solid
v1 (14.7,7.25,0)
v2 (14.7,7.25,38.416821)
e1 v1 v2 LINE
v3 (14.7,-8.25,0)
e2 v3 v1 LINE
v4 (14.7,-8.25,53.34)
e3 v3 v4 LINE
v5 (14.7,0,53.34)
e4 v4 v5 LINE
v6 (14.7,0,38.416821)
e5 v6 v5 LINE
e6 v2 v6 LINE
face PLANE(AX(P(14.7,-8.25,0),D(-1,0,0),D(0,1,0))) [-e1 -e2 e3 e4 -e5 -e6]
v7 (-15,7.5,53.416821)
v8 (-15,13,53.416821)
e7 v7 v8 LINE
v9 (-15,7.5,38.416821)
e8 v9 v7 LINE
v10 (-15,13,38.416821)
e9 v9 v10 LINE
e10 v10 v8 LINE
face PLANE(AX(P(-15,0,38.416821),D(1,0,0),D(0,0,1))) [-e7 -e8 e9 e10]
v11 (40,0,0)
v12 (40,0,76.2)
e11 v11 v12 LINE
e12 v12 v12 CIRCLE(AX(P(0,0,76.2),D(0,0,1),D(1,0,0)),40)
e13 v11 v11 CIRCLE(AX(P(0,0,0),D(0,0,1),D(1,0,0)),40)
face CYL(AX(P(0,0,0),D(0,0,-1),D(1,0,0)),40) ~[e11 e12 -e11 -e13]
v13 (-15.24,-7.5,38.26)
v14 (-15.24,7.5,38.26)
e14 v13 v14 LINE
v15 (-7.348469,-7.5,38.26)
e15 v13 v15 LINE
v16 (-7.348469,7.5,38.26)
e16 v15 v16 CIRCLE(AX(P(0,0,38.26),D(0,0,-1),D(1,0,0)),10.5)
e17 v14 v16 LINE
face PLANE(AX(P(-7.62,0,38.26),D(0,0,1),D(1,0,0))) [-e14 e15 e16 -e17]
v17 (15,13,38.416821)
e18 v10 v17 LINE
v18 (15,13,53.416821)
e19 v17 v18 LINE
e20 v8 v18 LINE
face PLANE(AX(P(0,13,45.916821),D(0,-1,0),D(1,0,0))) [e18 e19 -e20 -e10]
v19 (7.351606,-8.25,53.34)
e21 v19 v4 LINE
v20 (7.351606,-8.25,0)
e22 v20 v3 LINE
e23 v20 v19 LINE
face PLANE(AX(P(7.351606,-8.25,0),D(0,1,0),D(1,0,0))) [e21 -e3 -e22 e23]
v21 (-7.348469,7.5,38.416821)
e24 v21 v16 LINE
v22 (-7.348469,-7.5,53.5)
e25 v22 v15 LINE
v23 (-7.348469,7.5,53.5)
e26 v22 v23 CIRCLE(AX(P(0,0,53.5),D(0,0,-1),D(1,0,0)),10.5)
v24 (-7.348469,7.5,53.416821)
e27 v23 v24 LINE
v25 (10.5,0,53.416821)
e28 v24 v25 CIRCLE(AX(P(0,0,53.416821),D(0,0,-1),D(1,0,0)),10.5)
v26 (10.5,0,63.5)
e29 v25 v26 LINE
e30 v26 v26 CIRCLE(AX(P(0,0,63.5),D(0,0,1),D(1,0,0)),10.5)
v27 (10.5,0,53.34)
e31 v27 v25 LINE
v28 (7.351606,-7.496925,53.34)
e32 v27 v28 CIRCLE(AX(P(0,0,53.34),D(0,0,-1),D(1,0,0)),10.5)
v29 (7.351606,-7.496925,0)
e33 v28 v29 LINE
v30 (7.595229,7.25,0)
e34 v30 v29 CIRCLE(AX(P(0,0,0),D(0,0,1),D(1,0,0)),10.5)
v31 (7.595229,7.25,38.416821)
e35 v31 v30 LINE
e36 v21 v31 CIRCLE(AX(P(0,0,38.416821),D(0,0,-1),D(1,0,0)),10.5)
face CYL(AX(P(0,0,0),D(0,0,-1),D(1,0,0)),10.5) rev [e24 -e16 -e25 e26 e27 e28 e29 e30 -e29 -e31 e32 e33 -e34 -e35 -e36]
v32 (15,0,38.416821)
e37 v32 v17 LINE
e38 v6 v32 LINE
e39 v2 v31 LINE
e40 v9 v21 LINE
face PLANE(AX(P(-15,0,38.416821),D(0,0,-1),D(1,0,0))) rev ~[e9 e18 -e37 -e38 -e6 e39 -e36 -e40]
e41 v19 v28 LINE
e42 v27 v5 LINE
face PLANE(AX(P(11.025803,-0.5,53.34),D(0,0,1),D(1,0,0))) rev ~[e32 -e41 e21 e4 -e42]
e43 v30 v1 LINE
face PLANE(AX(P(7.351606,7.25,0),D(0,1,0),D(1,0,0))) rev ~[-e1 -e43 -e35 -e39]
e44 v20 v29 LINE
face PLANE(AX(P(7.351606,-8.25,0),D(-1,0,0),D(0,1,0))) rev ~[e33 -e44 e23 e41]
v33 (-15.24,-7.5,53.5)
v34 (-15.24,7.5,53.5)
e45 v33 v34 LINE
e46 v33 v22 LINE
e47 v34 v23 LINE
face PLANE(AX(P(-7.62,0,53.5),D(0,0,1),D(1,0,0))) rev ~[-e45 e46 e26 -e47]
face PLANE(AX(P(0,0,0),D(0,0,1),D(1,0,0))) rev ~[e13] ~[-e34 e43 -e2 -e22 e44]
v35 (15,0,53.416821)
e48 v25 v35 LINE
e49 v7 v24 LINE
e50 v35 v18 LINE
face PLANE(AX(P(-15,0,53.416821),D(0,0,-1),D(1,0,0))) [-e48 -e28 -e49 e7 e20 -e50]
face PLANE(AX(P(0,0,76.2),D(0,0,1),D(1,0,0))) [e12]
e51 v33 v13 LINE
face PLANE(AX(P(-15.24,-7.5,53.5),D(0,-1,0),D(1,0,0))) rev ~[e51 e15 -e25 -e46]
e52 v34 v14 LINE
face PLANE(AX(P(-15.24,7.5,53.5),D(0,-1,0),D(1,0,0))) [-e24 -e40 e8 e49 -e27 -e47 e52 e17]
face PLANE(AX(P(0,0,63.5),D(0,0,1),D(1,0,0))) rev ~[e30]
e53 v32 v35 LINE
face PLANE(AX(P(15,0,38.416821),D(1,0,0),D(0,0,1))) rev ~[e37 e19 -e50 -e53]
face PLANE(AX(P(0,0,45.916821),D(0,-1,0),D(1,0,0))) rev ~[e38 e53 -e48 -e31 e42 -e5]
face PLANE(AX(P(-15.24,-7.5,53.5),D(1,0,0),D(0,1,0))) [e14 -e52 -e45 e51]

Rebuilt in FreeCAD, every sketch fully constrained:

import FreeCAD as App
import Part
import Sketcher
Q = App.Units.Quantity


def add_polygon(sketch, points):
    """Adds a closed chain of lines whose ends are joined by coincident constraints."""
    first, n = sketch.GeometryCount, len(points)
    for a, b in zip(points, points[1:] + points[:1]):
        sketch.addGeometry(Part.LineSegment(App.Vector(*a, 0), App.Vector(*b, 0)), False)
    for i in range(n):
        sketch.addConstraint(Sketcher.Constraint("Coincident", first + i, 2, first + (i + 1) % n, 1))

doc = App.newDocument("Part")
body = doc.addObject("PartDesign::Body", "Body")

# Sketch on XY plane
sketch1 = body.newObject("Sketcher::SketchObject", "Sketch")
sketch1.AttachmentSupport = (doc.getObject("XY_Plane"), [""])
sketch1.MapMode = "FlatFace"
sketch1.addGeometry(Part.Circle(App.Vector(0, 0, 0), App.Vector(0, 0, 1), 40), False)
sketch1.addConstraint([
    Sketcher.Constraint("Coincident", 0, 3, -1, 1),
    Sketcher.Constraint("Diameter", 0, Q("80 mm")),
])
pad1 = body.newObject("PartDesign::Pad", "Pad")
pad1.Profile = sketch1
pad1.Length = 76.2

# Sketch on XY plane
sketch2 = body.newObject("Sketcher::SketchObject", "Sketch001")
sketch2.AttachmentSupport = (doc.getObject("XY_Plane"), [""])
sketch2.MapMode = "FlatFace"
sketch2.addGeometry(Part.Circle(App.Vector(0, 0, 0), App.Vector(0, 0, 1), 10), False)
sketch2.addConstraint([
    Sketcher.Constraint("Coincident", 0, 3, -1, 1),
    Sketcher.Constraint("Diameter", 0, Q("21 mm")),
])
pocket1 = body.newObject("PartDesign::Pocket", "Pocket")
pocket1.Profile = sketch2
pocket1.Length = 63.5
pocket1.Reversed = True

# Sketch on XY plane
sketch3 = body.newObject("Sketcher::SketchObject", "Sketch002")
sketch3.AttachmentSupport = (doc.getObject("XY_Plane"), [""])
sketch3.MapMode = "FlatFace"
add_polygon(sketch3, [(7, 7), (7, -8), (15, -8), (15, 7)])  # lines 0-3
sketch3.addConstraint([
    Sketcher.Constraint("Vertical", 0),
    Sketcher.Constraint("Horizontal", 1),
    Sketcher.Constraint("Vertical", 2),
    Sketcher.Constraint("Horizontal", 3),
    Sketcher.Constraint("DistanceY", 0, 2, 0, 1, Q("15.5 mm")),
    Sketcher.Constraint("DistanceX", -1, 1, 1, 2, Q("14.7 mm")),
    Sketcher.Constraint("DistanceY", 0, 2, -1, 1, Q("8.25 mm")),
    Sketcher.Constraint("DistanceX", 1, 1, 1, 2, Q("7.348393 mm")),
])
pocket2 = body.newObject("PartDesign::Pocket", "Pocket001")
pocket2.Profile = sketch3
pocket2.Length = 53.34
pocket2.Reversed = True

# Sketch on XY plane
sketch4 = body.newObject("Sketcher::SketchObject", "Sketch003")
sketch4.AttachmentSupport = (doc.getObject("XY_Plane"), [""])
sketch4.MapMode = "FlatFace"
sketch4.AttachmentOffset = App.Placement(App.Vector(0, 0, 53.5), App.Rotation())
add_polygon(sketch4, [(-15, 8), (-15, -8), (0, -8), (0, 8)])  # lines 0-3
sketch4.addConstraint([
    Sketcher.Constraint("Vertical", 0),
    Sketcher.Constraint("Horizontal", 1),
    Sketcher.Constraint("Vertical", 2),
    Sketcher.Constraint("Horizontal", 3),
    Sketcher.Constraint("Symmetric", 1, 2, 2, 2, -1, 1),
    Sketcher.Constraint("DistanceY", 0, 2, 0, 1, Q("15 mm")),
    Sketcher.Constraint("DistanceX", 1, 1, 1, 2, Q("15.24 mm")),
])
pocket3 = body.newObject("PartDesign::Pocket", "Pocket002")
pocket3.Profile = sketch4
pocket3.Length = 15.24

# Sketch on XZ plane
sketch5 = body.newObject("Sketcher::SketchObject", "Sketch004")
sketch5.AttachmentSupport = (doc.getObject("XZ_Plane"), [""])
sketch5.MapMode = "FlatFace"
add_polygon(sketch5, [(-15, 53), (-15, 38), (15, 38), (15, 53)])  # lines 0-3
sketch5.addConstraint([
    Sketcher.Constraint("Vertical", 0),
    Sketcher.Constraint("Horizontal", 1),
    Sketcher.Constraint("Vertical", 2),
    Sketcher.Constraint("Horizontal", 3),
    Sketcher.Constraint("DistanceX", 1, 1, 1, 2, Q("30 mm")),
    Sketcher.Constraint("DistanceY", 0, 2, 0, 1, Q("15 mm")),
    Sketcher.Constraint("DistanceX", 0, 2, -1, 1, Q("15 mm")),
    Sketcher.Constraint("DistanceY", -1, 1, 0, 2, Q("38.416821 mm")),
])
pocket4 = body.newObject("PartDesign::Pocket", "Pocket003")
pocket4.Profile = sketch5
pocket4.Length = 13

doc.recompute()
